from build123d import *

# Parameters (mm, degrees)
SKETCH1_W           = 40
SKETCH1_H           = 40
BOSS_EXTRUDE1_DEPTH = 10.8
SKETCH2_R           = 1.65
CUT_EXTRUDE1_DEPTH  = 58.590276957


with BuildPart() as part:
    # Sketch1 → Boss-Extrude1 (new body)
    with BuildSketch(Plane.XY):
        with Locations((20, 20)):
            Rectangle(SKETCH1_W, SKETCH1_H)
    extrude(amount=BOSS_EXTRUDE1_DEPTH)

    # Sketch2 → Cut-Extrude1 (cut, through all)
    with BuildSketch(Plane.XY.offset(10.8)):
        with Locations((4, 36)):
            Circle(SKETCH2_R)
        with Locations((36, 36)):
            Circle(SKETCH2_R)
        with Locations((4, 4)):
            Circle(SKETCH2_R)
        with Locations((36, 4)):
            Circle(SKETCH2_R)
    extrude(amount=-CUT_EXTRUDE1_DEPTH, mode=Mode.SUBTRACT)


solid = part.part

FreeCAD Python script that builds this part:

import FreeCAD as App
import Part
import Sketcher

V = App.Vector

doc = App.newDocument("Part")
body = doc.addObject("PartDesign::Body", "Body")

# Sketch on XY plane
sketch1 = body.newObject("Sketcher::SketchObject", "Sketch")
sketch1.AttachmentSupport = (doc.getObject("XY_Plane"), [""])
sketch1.MapMode = "FlatFace"
sketch1.addGeometry([
    Part.LineSegment(V(0, 40, 0), V(0, 0, 0)),
    Part.LineSegment(V(0, 0, 0), V(40, 0, 0)),
    Part.LineSegment(V(40, 0, 0), V(40, 40, 0)),
    Part.LineSegment(V(40, 40, 0), V(0, 40, 0)),
], False)
sketch1.addConstraint([
    Sketcher.Constraint("Coincident", 0, 2, 1, 1),
    Sketcher.Constraint("Coincident", 1, 2, 2, 1),
    Sketcher.Constraint("Coincident", 2, 2, 3, 1),
    Sketcher.Constraint("Coincident", 3, 2, 0, 1),
    Sketcher.Constraint("Vertical", 0),
    Sketcher.Constraint("Horizontal", 1),
    Sketcher.Constraint("Vertical", 2),
    Sketcher.Constraint("Horizontal", 3),
    Sketcher.Constraint("Coincident", 0, 2, -1, 1),
    Sketcher.Constraint("Equal", 3, 0),
    Sketcher.Constraint("DistanceX", 1, 1, 1, 2, 40.0),
])
pad1 = body.newObject("PartDesign::Pad", "Pad")
pad1.Profile = sketch1
pad1.Length = 10.8

# Sketch on XY plane
sketch2 = body.newObject("Sketcher::SketchObject", "Sketch001")
sketch2.AttachmentSupport = (doc.getObject("XY_Plane"), [""])
sketch2.MapMode = "FlatFace"
sketch2.AttachmentOffset = App.Placement(V(0, 0, 10.8), App.Rotation())
sketch2.addGeometry([
    Part.Circle(V(4, 36, 0), V(0, 0, 1), 1.65),
    Part.Circle(V(36, 36, 0), V(0, 0, 1), 1.65),
    Part.Circle(V(4, 4, 0), V(0, 0, 1), 1.65),
    Part.Circle(V(36, 4, 0), V(0, 0, 1), 1.65),
], False)
sketch2.addConstraint([
    Sketcher.Constraint("Equal", 0, 1),
    Sketcher.Constraint("Equal", 1, 2),
    Sketcher.Constraint("Equal", 2, 3),
    Sketcher.Constraint("Horizontal", 0, 3, 1, 3),
    Sketcher.Constraint("Horizontal", 2, 3, 3, 3),
    Sketcher.Constraint("Vertical", 0, 3, 2, 3),
    Sketcher.Constraint("Vertical", 1, 3, 3, 3),
    Sketcher.Constraint("Diameter", 0, 3.3),
    Sketcher.Constraint("DistanceX", -1, 1, 0, 3, 4.0),
    Sketcher.Constraint("DistanceY", -1, 1, 0, 3, 36.0),
    Sketcher.Constraint("DistanceX", -1, 1, 1, 3, 36.0),
    Sketcher.Constraint("DistanceY", -1, 1, 2, 3, 4.0),
])
pocket1 = body.newObject("PartDesign::Pocket", "Pocket")
pocket1.Profile = sketch2
pocket1.Type = "ThroughAll"

doc.recompute()
